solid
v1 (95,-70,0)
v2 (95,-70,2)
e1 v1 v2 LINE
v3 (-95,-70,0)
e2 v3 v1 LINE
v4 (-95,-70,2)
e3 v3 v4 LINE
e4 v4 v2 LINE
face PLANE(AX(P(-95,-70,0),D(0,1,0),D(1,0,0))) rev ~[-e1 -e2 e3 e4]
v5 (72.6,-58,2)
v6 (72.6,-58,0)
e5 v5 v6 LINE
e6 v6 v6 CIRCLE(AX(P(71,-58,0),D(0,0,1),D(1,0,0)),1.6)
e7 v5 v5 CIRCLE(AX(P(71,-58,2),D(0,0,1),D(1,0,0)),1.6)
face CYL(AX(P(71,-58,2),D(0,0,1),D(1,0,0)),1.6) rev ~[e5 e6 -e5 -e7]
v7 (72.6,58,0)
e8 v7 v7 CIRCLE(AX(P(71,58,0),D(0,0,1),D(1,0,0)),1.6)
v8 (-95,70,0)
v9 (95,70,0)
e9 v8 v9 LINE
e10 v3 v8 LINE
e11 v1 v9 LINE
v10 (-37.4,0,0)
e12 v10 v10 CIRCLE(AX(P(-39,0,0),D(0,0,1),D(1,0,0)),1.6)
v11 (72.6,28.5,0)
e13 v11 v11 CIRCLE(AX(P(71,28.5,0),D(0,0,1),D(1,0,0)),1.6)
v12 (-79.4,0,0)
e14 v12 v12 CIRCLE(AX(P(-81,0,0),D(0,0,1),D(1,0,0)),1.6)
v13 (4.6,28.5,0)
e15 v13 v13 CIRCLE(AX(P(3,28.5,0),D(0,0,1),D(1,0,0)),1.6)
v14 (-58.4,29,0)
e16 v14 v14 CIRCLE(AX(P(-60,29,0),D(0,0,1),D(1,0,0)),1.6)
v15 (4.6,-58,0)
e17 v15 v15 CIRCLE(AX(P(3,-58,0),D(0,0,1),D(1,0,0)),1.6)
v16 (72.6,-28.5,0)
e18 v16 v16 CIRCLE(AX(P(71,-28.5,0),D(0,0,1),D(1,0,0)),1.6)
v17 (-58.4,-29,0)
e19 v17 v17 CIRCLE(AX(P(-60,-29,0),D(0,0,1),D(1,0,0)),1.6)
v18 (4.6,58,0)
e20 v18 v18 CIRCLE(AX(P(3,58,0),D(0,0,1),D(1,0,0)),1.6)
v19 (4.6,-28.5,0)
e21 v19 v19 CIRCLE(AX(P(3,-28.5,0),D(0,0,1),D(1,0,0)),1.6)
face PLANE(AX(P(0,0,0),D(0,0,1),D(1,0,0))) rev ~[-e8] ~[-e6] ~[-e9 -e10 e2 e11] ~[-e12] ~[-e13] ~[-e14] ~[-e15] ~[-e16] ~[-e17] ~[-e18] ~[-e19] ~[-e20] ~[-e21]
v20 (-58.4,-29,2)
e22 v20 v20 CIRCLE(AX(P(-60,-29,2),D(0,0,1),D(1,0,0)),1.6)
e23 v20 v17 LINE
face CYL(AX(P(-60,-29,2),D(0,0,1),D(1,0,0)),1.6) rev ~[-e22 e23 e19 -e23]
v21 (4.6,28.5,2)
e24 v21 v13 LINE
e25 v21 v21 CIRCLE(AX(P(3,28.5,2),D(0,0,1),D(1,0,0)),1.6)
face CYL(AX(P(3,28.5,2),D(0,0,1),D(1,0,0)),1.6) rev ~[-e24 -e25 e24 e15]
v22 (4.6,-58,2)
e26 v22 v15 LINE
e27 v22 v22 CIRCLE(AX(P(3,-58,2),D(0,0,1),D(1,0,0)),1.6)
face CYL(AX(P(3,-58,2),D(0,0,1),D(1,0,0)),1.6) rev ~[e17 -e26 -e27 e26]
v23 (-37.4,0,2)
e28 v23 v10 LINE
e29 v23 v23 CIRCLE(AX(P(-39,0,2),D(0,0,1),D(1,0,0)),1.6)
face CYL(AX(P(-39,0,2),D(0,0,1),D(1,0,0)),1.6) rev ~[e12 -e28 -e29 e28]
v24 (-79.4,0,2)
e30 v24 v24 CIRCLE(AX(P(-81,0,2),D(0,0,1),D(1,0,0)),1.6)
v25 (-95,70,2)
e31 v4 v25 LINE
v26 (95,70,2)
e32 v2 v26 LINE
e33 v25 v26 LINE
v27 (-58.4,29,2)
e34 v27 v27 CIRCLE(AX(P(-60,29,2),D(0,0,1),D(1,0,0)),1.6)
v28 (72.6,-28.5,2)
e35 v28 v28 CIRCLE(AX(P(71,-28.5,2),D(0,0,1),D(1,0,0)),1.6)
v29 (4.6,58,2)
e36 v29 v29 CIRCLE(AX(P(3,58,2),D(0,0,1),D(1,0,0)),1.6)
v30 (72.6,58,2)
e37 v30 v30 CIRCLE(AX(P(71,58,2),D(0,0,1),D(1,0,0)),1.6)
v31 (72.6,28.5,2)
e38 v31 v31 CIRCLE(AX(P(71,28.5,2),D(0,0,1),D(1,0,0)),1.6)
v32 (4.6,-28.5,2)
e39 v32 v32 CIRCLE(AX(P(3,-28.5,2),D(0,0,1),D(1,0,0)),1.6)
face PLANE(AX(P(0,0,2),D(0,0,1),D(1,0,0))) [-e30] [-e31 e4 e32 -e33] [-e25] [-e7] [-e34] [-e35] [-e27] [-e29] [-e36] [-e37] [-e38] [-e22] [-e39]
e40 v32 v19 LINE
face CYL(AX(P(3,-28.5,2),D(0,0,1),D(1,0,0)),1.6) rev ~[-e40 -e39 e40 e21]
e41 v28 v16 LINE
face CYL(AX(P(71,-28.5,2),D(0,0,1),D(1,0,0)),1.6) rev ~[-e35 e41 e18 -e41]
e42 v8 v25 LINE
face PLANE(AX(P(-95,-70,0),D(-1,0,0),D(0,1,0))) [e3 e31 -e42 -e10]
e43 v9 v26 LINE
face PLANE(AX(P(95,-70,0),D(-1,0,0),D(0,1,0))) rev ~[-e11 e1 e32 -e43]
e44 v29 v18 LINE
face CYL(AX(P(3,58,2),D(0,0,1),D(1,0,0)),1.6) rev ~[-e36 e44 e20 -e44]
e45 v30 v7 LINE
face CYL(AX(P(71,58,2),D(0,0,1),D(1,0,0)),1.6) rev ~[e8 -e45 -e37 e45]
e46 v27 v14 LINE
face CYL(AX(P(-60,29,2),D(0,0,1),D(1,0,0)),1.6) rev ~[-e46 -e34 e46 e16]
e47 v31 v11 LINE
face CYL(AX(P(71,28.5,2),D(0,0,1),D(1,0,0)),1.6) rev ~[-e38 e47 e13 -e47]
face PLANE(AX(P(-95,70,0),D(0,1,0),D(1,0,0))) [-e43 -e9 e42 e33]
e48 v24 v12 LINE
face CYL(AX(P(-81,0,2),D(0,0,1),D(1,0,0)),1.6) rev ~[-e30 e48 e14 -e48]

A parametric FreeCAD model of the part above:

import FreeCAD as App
import Part
import Sketcher
Q = App.Units.Quantity

doc = App.newDocument("Part")
params = doc.addObject("Spreadsheet::Sheet", "Params")
for row, (alias, value) in enumerate([
    ("sketch1_width", "190 mm"),
    ("sketch1_height", "140 mm"),
    ("pad1_length", "2 mm"),
    ("sketch2_diameter", "3.2 mm"),
    ("pocket1_length", "25 mm"),
], start=1):
    params.set(f"A{row}", alias)
    params.set(f"B{row}", "=" + value)
    params.setAlias(f"B{row}", alias)

body = doc.addObject("PartDesign::Body", "Body")

# Sketch on XY plane
sketch1 = body.newObject("Sketcher::SketchObject", "Sketch")
sketch1.AttachmentSupport = (doc.getObject("XY_Plane"), [""])
sketch1.MapMode = "FlatFace"
sketch1.addGeometry([
    Part.LineSegment(App.Vector(-95, 70, 0), App.Vector(-95, -70, 0)),
    Part.LineSegment(App.Vector(-95, -70, 0), App.Vector(95, -70, 0)),
    Part.LineSegment(App.Vector(95, -70, 0), App.Vector(95, 70, 0)),
    Part.LineSegment(App.Vector(95, 70, 0), App.Vector(-95, 70, 0)),
], False)
sketch1.addConstraint([
    Sketcher.Constraint("Coincident", 0, 2, 1, 1),
    Sketcher.Constraint("Coincident", 1, 2, 2, 1),
    Sketcher.Constraint("Coincident", 2, 2, 3, 1),
    Sketcher.Constraint("Coincident", 3, 2, 0, 1),
    Sketcher.Constraint("Vertical", 0),
    Sketcher.Constraint("Horizontal", 1),
    Sketcher.Constraint("Vertical", 2),
    Sketcher.Constraint("Horizontal", 3),
    Sketcher.Constraint("Symmetric", 0, 2, 2, 2, -1, 1),
    Sketcher.Constraint("DistanceX", 1, 1, 1, 2, Q("190 mm")),
    Sketcher.Constraint("DistanceY", 0, 2, 0, 1, Q("140 mm")),
])
sketch1.setExpression("Constraints[9]", "Params.sketch1_width")
sketch1.setExpression("Constraints[10]", "Params.sketch1_height")
pad1 = body.newObject("PartDesign::Pad", "Pad")
pad1.Profile = sketch1
pad1.setExpression("Length", "Params.pad1_length")

# Sketch on XY plane
sketch2 = body.newObject("Sketcher::SketchObject", "Sketch001")
sketch2.AttachmentSupport = (doc.getObject("XY_Plane"), [""])
sketch2.MapMode = "FlatFace"
sketch2.AttachmentOffset = App.Placement(App.Vector(0, 0, 2), App.Rotation())
sketch2.addGeometry([
    Part.Circle(App.Vector(71, 58, 0), App.Vector(0, 0, 1), 1.6),  # 0
    Part.Circle(App.Vector(71, 28.5, 0), App.Vector(0, 0, 1), 1.6),  # 1
    Part.Circle(App.Vector(3, 58, 0), App.Vector(0, 0, 1), 1.6),  # 2
    Part.Circle(App.Vector(3, 28.5, 0), App.Vector(0, 0, 1), 1.6),  # 3
    Part.Circle(App.Vector(71, -28.5, 0), App.Vector(0, 0, 1), 1.6),  # 4
    Part.Circle(App.Vector(3, -28.5, 0), App.Vector(0, 0, 1), 1.6),  # 5
    Part.Circle(App.Vector(3, -58, 0), App.Vector(0, 0, 1), 1.6),  # 6
    Part.Circle(App.Vector(71, -58, 0), App.Vector(0, 0, 1), 1.6),  # 7
    Part.Circle(App.Vector(-81, 0, 0), App.Vector(0, 0, 1), 1.6),  # 8
    Part.Circle(App.Vector(-39, 0, 0), App.Vector(0, 0, 1), 1.6),  # 9
    Part.Circle(App.Vector(-60, 29, 0), App.Vector(0, 0, 1), 1.6),  # 10
    Part.Circle(App.Vector(-60, -29, 0), App.Vector(0, 0, 1), 1.6),  # 11
], False)
sketch2.addConstraint([
    Sketcher.Constraint("Equal", 0, 1),
    Sketcher.Constraint("Equal", 1, 2),
    Sketcher.Constraint("Equal", 2, 3),
    Sketcher.Constraint("Equal", 3, 4),
    Sketcher.Constraint("Equal", 4, 5),
    Sketcher.Constraint("Equal", 5, 6),
    Sketcher.Constraint("Equal", 6, 7),
    Sketcher.Constraint("Equal", 7, 8),
    Sketcher.Constraint("Equal", 8, 9),
    Sketcher.Constraint("Equal", 9, 10),
    Sketcher.Constraint("Equal", 10, 11),
    Sketcher.Constraint("Symmetric", 1, 3, 4, 3, -1),
    Sketcher.Constraint("Symmetric", 3, 3, 5, 3, -1),
    Sketcher.Constraint("Symmetric", 2, 3, 6, 3, -1),
    Sketcher.Constraint("Symmetric", 0, 3, 7, 3, -1),
    Sketcher.Constraint("Symmetric", 10, 3, 11, 3, -1),
    Sketcher.Constraint("PointOnObject", 8, 3, -1),
    Sketcher.Constraint("PointOnObject", 9, 3, -1),
    Sketcher.Constraint("Horizontal", 0, 3, 2, 3),
    Sketcher.Constraint("Horizontal", 1, 3, 3, 3),
    Sketcher.Constraint("Vertical", 0, 3, 1, 3),
    Sketcher.Constraint("Vertical", 2, 3, 3, 3),
    Sketcher.Constraint("Diameter", 0, Q("3.2 mm")),
    Sketcher.Constraint("DistanceX", -1, 1, 0, 3, Q("71 mm")),
    Sketcher.Constraint("DistanceY", -1, 1, 0, 3, Q("58 mm")),
    Sketcher.Constraint("DistanceX", -1, 1, 2, 3, Q("3 mm")),
    Sketcher.Constraint("DistanceX", 8, 3, -1, 1, Q("81 mm")),
    Sketcher.Constraint("DistanceX", 9, 3, -1, 1, Q("39 mm")),
    Sketcher.Constraint("DistanceX", 10, 3, -1, 1, Q("60 mm")),
    Sketcher.Constraint("DistanceY", -1, 1, 10, 3, Q("29 mm")),
    Sketcher.Constraint("DistanceY", 4, 3, 1, 3, Q("57 mm")),
])
sketch2.setExpression("Constraints[22]", "Params.sketch2_diameter")
pocket1 = body.newObject("PartDesign::Pocket", "Pocket")
pocket1.Profile = sketch2
pocket1.setExpression("Length", "Params.pocket1_length")

doc.recompute()
